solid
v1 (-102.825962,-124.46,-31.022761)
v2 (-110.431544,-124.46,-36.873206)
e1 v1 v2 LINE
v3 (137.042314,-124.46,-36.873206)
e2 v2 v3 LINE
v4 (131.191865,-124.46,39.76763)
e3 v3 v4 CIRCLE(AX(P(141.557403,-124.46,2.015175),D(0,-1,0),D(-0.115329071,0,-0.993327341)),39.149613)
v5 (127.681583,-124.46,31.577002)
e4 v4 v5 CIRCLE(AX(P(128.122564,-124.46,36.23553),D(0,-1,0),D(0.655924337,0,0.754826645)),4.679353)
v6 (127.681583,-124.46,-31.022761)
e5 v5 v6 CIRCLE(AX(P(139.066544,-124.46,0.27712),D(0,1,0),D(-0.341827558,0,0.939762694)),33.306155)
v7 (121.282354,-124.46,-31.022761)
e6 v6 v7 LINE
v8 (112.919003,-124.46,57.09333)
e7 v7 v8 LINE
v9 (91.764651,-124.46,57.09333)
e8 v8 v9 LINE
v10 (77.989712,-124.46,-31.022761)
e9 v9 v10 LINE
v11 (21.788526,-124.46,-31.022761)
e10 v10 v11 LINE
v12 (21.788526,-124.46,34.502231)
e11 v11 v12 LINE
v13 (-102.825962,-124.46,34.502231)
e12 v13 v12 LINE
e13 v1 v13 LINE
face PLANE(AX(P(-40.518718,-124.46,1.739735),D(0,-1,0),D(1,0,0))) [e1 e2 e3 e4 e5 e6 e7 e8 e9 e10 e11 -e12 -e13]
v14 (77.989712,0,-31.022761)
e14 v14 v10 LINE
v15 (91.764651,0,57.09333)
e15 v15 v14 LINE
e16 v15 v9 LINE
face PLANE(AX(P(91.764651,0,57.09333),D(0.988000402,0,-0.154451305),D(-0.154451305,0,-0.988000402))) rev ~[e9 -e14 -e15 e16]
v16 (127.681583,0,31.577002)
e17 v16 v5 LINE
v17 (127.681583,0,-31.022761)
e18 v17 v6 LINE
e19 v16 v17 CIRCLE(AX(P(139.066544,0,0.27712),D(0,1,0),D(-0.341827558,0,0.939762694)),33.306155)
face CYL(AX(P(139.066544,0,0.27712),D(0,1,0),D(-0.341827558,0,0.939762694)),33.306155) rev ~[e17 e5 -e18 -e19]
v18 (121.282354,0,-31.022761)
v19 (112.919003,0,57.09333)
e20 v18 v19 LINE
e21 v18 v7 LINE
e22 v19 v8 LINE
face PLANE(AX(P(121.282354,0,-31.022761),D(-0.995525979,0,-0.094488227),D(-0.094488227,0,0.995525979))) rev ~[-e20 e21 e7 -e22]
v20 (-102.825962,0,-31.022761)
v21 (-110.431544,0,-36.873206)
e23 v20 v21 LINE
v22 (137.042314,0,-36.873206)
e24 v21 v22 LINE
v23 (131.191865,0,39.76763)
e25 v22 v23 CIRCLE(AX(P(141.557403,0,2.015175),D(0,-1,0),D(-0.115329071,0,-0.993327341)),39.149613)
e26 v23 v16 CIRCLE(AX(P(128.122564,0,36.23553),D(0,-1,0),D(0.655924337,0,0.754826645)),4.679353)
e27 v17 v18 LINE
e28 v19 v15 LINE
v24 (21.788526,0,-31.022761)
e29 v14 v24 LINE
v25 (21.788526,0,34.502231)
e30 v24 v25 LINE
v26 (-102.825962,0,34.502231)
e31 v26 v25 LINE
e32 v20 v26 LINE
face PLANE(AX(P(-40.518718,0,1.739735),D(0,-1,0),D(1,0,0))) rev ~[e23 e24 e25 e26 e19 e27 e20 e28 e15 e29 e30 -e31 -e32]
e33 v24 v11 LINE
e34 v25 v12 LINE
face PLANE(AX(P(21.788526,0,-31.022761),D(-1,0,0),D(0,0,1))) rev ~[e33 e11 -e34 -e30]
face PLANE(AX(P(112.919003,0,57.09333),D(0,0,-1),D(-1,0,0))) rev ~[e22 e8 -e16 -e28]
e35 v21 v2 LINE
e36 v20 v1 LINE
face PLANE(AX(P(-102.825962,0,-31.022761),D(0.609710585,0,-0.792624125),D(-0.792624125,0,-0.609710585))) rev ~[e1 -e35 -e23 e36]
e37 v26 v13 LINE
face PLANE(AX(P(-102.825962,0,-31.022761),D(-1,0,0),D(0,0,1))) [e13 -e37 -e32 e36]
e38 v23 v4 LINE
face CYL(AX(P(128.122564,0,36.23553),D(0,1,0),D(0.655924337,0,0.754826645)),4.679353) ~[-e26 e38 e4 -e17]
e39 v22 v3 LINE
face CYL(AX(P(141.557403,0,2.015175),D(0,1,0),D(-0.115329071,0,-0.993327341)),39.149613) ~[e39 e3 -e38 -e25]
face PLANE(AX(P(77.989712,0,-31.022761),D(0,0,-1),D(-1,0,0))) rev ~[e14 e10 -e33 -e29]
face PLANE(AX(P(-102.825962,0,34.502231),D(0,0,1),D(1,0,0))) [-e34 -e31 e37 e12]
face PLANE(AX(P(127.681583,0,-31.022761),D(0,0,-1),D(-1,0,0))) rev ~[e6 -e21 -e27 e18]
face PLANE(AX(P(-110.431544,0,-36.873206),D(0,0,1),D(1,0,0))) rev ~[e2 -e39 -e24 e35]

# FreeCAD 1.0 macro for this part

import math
import FreeCAD as App
import Part
import Sketcher
from FreeCAD import Vector
Q = App.Units.Quantity

doc = App.newDocument("Part")
body = doc.addObject("PartDesign::Body", "Body")

# Sketch on XZ plane
sketch1 = body.newObject("Sketcher::SketchObject", "Sketch")
sketch1.AttachmentSupport = (doc.getObject("XZ_Plane"), [""])
sketch1.MapMode = "FlatFace"
sketch1.addGeometry(Part.LineSegment(Vector(-102.8, 34.5, 0), Vector(-102.8, -31, 0)), False)
sketch1.addGeometry(Part.LineSegment(Vector(-102.8, -31, 0), Vector(-110.4, -36.9, 0)), False)
sketch1.addGeometry(Part.LineSegment(Vector(-110.4, -36.9, 0), Vector(137, -36.9, 0)), False)
sketch1.addGeometry(Part.ArcOfCircle(Part.Circle(Vector(141.6, 2, 0), Vector(0, 0, 1), 39.1), math.radians(-97), math.radians(105)), False)
sketch1.addGeometry(Part.ArcOfCircle(Part.Circle(Vector(128.1, 36.2, 0), Vector(0, 0, 1), 4.7), math.radians(49), math.radians(265)), False)
sketch1.addGeometry(Part.ArcOfCircle(Part.Circle(Vector(139.1, 0.3, 0), Vector(0, 0, 1), 33.3), math.radians(-110), math.radians(110)), False)
sketch1.addGeometry(Part.LineSegment(Vector(127.7, -31, 0), Vector(121.3, -31, 0)), False)
sketch1.addGeometry(Part.LineSegment(Vector(121.3, -31, 0), Vector(112.9, 57.1, 0)), False)
sketch1.addGeometry(Part.LineSegment(Vector(112.9, 57.1, 0), Vector(91.8, 57.1, 0)), False)
sketch1.addGeometry(Part.LineSegment(Vector(91.8, 57.1, 0), Vector(78, -31, 0)), False)
sketch1.addGeometry(Part.LineSegment(Vector(78, -31, 0), Vector(21.8, -31, 0)), False)
sketch1.addGeometry(Part.LineSegment(Vector(21.8, -31, 0), Vector(21.8, 34.5, 0)), False)
sketch1.addGeometry(Part.LineSegment(Vector(21.8, 34.5, 0), Vector(-102.8, 34.5, 0)), False)
sketch1.addConstraint(Sketcher.Constraint("Coincident", 0, 2, 1, 1))
sketch1.addConstraint(Sketcher.Constraint("Coincident", 1, 2, 2, 1))
sketch1.addConstraint(Sketcher.Constraint("Coincident", 2, 2, 3, 1))
sketch1.addConstraint(Sketcher.Constraint("Coincident", 3, 2, 4, 1))
sketch1.addConstraint(Sketcher.Constraint("Coincident", 4, 2, 5, 2))
sketch1.addConstraint(Sketcher.Constraint("Coincident", 5, 1, 6, 1))
sketch1.addConstraint(Sketcher.Constraint("Coincident", 6, 2, 7, 1))
sketch1.addConstraint(Sketcher.Constraint("Coincident", 7, 2, 8, 1))
sketch1.addConstraint(Sketcher.Constraint("Coincident", 8, 2, 9, 1))
sketch1.addConstraint(Sketcher.Constraint("Coincident", 9, 2, 10, 1))
sketch1.addConstraint(Sketcher.Constraint("Coincident", 10, 2, 11, 1))
sketch1.addConstraint(Sketcher.Constraint("Coincident", 11, 2, 12, 1))
sketch1.addConstraint(Sketcher.Constraint("Coincident", 12, 2, 0, 1))
sketch1.addConstraint(Sketcher.Constraint("Vertical", 0))
sketch1.addConstraint(Sketcher.Constraint("Horizontal", 2))
sketch1.addConstraint(Sketcher.Constraint("Horizontal", 6))
sketch1.addConstraint(Sketcher.Constraint("Horizontal", 8))
sketch1.addConstraint(Sketcher.Constraint("Horizontal", 10))
sketch1.addConstraint(Sketcher.Constraint("Vertical", 11))
sketch1.addConstraint(Sketcher.Constraint("Horizontal", 12))
sketch1.addConstraint(Sketcher.Constraint("Horizontal", 0, 2, 5, 1))
sketch1.addConstraint(Sketcher.Constraint("Horizontal", 6, 2, 9, 2))
sketch1.addConstraint(Sketcher.Constraint("Vertical", 4, 2, 5, 1))
sketch1.addConstraint(Sketcher.Constraint("Radius", 3, Q("39.149613 mm")))
sketch1.addConstraint(Sketcher.Constraint("Radius", 4, Q("4.679353 mm")))
sketch1.addConstraint(Sketcher.Constraint("Radius", 5, Q("33.306155 mm")))
sketch1.addConstraint(Sketcher.Constraint("DistanceX", 4, 2, 3, 2, Q("0.1382001 in")))
sketch1.addConstraint(Sketcher.Constraint("DistanceX", 2, 1, 2, 2, Q("247.473858 mm")))
sketch1.addConstraint(Sketcher.Constraint("DistanceX", 6, 2, 6, 1, Q("6.399229 mm")))
sketch1.addConstraint(Sketcher.Constraint("DistanceX", 12, 2, 12, 1, Q("124.614488 mm")))
sketch1.addConstraint(Sketcher.Constraint("DistanceY", 0, 2, 0, 1, Q("65.524992 mm")))
sketch1.addConstraint(Sketcher.Constraint("DistanceY", -1, 1, 4, 2, Q("31.577002 mm")))
sketch1.addConstraint(Sketcher.Constraint("DistanceX", 4, 3, 3, 2, Q("3.069301 mm")))
sketch1.addConstraint(Sketcher.Constraint("DistanceY", 3, 2, 7, 2, Q("17.3257 mm")))
sketch1.addConstraint(Sketcher.Constraint("DistanceX", 7, 2, 3, 3, Q("28.6384 mm")))
sketch1.addConstraint(Sketcher.Constraint("DistanceY", 11, 2, 8, 2, Q("22.591099 mm")))
sketch1.addConstraint(Sketcher.Constraint("Distance", 9, Q("89.186291 mm")))
sketch1.addConstraint(Sketcher.Constraint("DistanceX", 8, 2, 8, 1, Q("21.154352 mm")))
sketch1.addConstraint(Sketcher.Constraint("DistanceX", 10, 2, 10, 1, Q("56.201186 mm")))
sketch1.addConstraint(Sketcher.Constraint("DistanceX", -1, 1, 8, 2, Q("91.764651 mm")))
sketch1.addConstraint(Sketcher.Constraint("DistanceX", 4, 3, 3, 3, Q("13.434839 mm")))
sketch1.addConstraint(Sketcher.Constraint("DistanceX", 1, 2, 0, 2, Q("7.605582 mm")))
pad1 = body.newObject("PartDesign::Pad", "Pad")
pad1.Profile = sketch1
pad1.Length = Q("4.9 in")

doc.recompute()
